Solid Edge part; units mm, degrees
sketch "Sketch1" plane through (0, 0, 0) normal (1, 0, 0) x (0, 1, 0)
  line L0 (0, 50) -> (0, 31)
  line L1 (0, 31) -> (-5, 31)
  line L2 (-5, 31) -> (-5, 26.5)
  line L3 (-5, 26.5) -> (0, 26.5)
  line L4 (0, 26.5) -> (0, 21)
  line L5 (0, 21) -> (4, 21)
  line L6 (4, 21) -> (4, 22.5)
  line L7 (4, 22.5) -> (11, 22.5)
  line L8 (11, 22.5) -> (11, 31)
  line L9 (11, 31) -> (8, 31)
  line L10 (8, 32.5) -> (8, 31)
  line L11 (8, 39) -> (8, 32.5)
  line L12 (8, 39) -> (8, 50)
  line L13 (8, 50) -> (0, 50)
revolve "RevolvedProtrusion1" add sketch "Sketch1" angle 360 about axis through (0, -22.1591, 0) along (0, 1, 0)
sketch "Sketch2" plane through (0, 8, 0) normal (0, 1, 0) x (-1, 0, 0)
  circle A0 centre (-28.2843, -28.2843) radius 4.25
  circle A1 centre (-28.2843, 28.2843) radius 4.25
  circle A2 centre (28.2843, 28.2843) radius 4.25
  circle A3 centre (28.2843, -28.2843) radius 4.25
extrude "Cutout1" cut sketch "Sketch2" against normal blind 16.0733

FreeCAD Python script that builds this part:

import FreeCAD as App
import Part
import Sketcher

V = App.Vector

doc = App.newDocument("Part")
params = doc.addObject("Spreadsheet::Sheet", "Params")
for row, (alias, value) in enumerate([
    ("sketch1_width", "8 mm"),
    ("sketch1_width2", "5 mm"),
    ("sketch1_width3", "4 mm"),
    ("sketch1_width4", "7 mm"),
    ("sketch1_height", "19 mm"),
    ("revolution_angle", "360 deg"),
    ("sketch2_diameter", "8.5 mm"),
    ("pocket1_length", "16.0733 mm"),
], start=1):
    params.set(f"A{row}", alias)
    params.set(f"B{row}", "=" + value)
    params.setAlias(f"B{row}", alias)

body = doc.addObject("PartDesign::Body", "Body")

# Sketch on YZ plane
sketch1 = body.newObject("Sketcher::SketchObject", "Sketch")
sketch1.AttachmentSupport = (doc.getObject("YZ_Plane"), [""])
sketch1.MapMode = "FlatFace"
sketch1.addGeometry(Part.LineSegment(V(8, 50, 0), V(0, 50, 0)), False)
sketch1.addGeometry(Part.LineSegment(V(0, 50, 0), V(0, 31, 0)), False)
sketch1.addGeometry(Part.LineSegment(V(0, 31, 0), V(-5, 31, 0)), False)
sketch1.addGeometry(Part.LineSegment(V(-5, 31, 0), V(-5, 26.5, 0)), False)
sketch1.addGeometry(Part.LineSegment(V(-5, 26.5, 0), V(0, 26.5, 0)), False)
sketch1.addGeometry(Part.LineSegment(V(0, 26.5, 0), V(0, 21, 0)), False)
sketch1.addGeometry(Part.LineSegment(V(0, 21, 0), V(4, 21, 0)), False)
sketch1.addGeometry(Part.LineSegment(V(4, 21, 0), V(4, 22.5, 0)), False)
sketch1.addGeometry(Part.LineSegment(V(4, 22.5, 0), V(11, 22.5, 0)), False)
sketch1.addGeometry(Part.LineSegment(V(11, 22.5, 0), V(11, 31, 0)), False)
sketch1.addGeometry(Part.LineSegment(V(11, 31, 0), V(8, 31, 0)), False)
sketch1.addGeometry(Part.LineSegment(V(8, 31, 0), V(8, 50, 0)), False)
sketch1.addConstraint(Sketcher.Constraint("Coincident", 0, 2, 1, 1))
sketch1.addConstraint(Sketcher.Constraint("Coincident", 1, 2, 2, 1))
sketch1.addConstraint(Sketcher.Constraint("Coincident", 2, 2, 3, 1))
sketch1.addConstraint(Sketcher.Constraint("Coincident", 3, 2, 4, 1))
sketch1.addConstraint(Sketcher.Constraint("Coincident", 4, 2, 5, 1))
sketch1.addConstraint(Sketcher.Constraint("Coincident", 5, 2, 6, 1))
sketch1.addConstraint(Sketcher.Constraint("Coincident", 6, 2, 7, 1))
sketch1.addConstraint(Sketcher.Constraint("Coincident", 7, 2, 8, 1))
sketch1.addConstraint(Sketcher.Constraint("Coincident", 8, 2, 9, 1))
sketch1.addConstraint(Sketcher.Constraint("Coincident", 9, 2, 10, 1))
sketch1.addConstraint(Sketcher.Constraint("Coincident", 10, 2, 11, 1))
sketch1.addConstraint(Sketcher.Constraint("Coincident", 11, 2, 0, 1))
sketch1.addConstraint(Sketcher.Constraint("Horizontal", 0))
sketch1.addConstraint(Sketcher.Constraint("Vertical", 1))
sketch1.addConstraint(Sketcher.Constraint("Horizontal", 2))
sketch1.addConstraint(Sketcher.Constraint("Vertical", 3))
sketch1.addConstraint(Sketcher.Constraint("Horizontal", 4))
sketch1.addConstraint(Sketcher.Constraint("Vertical", 5))
sketch1.addConstraint(Sketcher.Constraint("Horizontal", 6))
sketch1.addConstraint(Sketcher.Constraint("Vertical", 7))
sketch1.addConstraint(Sketcher.Constraint("Horizontal", 8))
sketch1.addConstraint(Sketcher.Constraint("Vertical", 9))
sketch1.addConstraint(Sketcher.Constraint("Horizontal", 10))
sketch1.addConstraint(Sketcher.Constraint("Vertical", 11))
sketch1.addConstraint(Sketcher.Constraint("PointOnObject", 0, 2, -2))
sketch1.addConstraint(Sketcher.Constraint("PointOnObject", 4, 2, -2))
sketch1.addConstraint(Sketcher.Constraint("Horizontal", 2, 2, 9, 2))
sketch1.addConstraint(Sketcher.Constraint("DistanceX", 0, 2, 0, 1, 8.0))
sketch1.addConstraint(Sketcher.Constraint("DistanceX", 2, 2, 2, 1, 5.0))
sketch1.addConstraint(Sketcher.Constraint("DistanceX", 6, 1, 6, 2, 4.0))
sketch1.addConstraint(Sketcher.Constraint("DistanceX", 8, 1, 8, 2, 7.0))
sketch1.addConstraint(Sketcher.Constraint("DistanceY", 1, 2, 1, 1, 19.0))
sketch1.addConstraint(Sketcher.Constraint("DistanceY", 3, 2, 3, 1, 4.5))
sketch1.addConstraint(Sketcher.Constraint("DistanceY", 5, 2, 5, 1, 5.5))
sketch1.addConstraint(Sketcher.Constraint("DistanceY", 7, 1, 7, 2, 1.5))
sketch1.addConstraint(Sketcher.Constraint("DistanceY", -1, 1, 0, 2, 50.0))
sketch1.setExpression("Constraints[27]", "Params.sketch1_width")
sketch1.setExpression("Constraints[28]", "Params.sketch1_width2")
sketch1.setExpression("Constraints[29]", "Params.sketch1_width3")
sketch1.setExpression("Constraints[30]", "Params.sketch1_width4")
sketch1.setExpression("Constraints[31]", "Params.sketch1_height")
revolution = body.newObject("PartDesign::Revolution", "Revolution")
revolution.Profile = sketch1
revolution.ReferenceAxis = (sketch1, ["H_Axis"])
revolution.setExpression("Angle", "Params.revolution_angle")

# Sketch on XZ plane
sketch2 = body.newObject("Sketcher::SketchObject", "Sketch001")
sketch2.AttachmentSupport = (doc.getObject("XZ_Plane"), [""])
sketch2.MapMode = "FlatFace"
sketch2.AttachmentOffset = App.Placement(V(0, 0, -8), App.Rotation())
sketch2.addGeometry(Part.Circle(V(28.3, -28.3, 0), V(0, 0, 1), 4.2), False)
sketch2.addGeometry(Part.Circle(V(28.3, 28.3, 0), V(0, 0, 1), 4.2), False)
sketch2.addGeometry(Part.Circle(V(-28.3, 28.3, 0), V(0, 0, 1), 4.2), False)
sketch2.addGeometry(Part.Circle(V(-28.3, -28.3, 0), V(0, 0, 1), 4.2), False)
sketch2.addConstraint(Sketcher.Constraint("Equal", 0, 1))
sketch2.addConstraint(Sketcher.Constraint("Equal", 1, 2))
sketch2.addConstraint(Sketcher.Constraint("Equal", 2, 3))
sketch2.addConstraint(Sketcher.Constraint("Symmetric", 0, 3, 2, 3, -1, 1))
sketch2.addConstraint(Sketcher.Constraint("Symmetric", 1, 3, 3, 3, -1, 1))
sketch2.addConstraint(Sketcher.Constraint("Symmetric", 1, 3, 2, 3, -2))
sketch2.addConstraint(Sketcher.Constraint("Diameter", 0, 8.5))
sketch2.addConstraint(Sketcher.Constraint("DistanceX", -1, 1, 0, 3, 28.2843))
sketch2.addConstraint(Sketcher.Constraint("DistanceY", 0, 3, -1, 1, 28.2843))
sketch2.setExpression("Constraints[6]", "Params.sketch2_diameter")
pocket1 = body.newObject("PartDesign::Pocket", "Pocket")
pocket1.Profile = sketch2
pocket1.setExpression("Length", "Params.pocket1_length")
pocket1.Reversed = True

doc.recompute()
